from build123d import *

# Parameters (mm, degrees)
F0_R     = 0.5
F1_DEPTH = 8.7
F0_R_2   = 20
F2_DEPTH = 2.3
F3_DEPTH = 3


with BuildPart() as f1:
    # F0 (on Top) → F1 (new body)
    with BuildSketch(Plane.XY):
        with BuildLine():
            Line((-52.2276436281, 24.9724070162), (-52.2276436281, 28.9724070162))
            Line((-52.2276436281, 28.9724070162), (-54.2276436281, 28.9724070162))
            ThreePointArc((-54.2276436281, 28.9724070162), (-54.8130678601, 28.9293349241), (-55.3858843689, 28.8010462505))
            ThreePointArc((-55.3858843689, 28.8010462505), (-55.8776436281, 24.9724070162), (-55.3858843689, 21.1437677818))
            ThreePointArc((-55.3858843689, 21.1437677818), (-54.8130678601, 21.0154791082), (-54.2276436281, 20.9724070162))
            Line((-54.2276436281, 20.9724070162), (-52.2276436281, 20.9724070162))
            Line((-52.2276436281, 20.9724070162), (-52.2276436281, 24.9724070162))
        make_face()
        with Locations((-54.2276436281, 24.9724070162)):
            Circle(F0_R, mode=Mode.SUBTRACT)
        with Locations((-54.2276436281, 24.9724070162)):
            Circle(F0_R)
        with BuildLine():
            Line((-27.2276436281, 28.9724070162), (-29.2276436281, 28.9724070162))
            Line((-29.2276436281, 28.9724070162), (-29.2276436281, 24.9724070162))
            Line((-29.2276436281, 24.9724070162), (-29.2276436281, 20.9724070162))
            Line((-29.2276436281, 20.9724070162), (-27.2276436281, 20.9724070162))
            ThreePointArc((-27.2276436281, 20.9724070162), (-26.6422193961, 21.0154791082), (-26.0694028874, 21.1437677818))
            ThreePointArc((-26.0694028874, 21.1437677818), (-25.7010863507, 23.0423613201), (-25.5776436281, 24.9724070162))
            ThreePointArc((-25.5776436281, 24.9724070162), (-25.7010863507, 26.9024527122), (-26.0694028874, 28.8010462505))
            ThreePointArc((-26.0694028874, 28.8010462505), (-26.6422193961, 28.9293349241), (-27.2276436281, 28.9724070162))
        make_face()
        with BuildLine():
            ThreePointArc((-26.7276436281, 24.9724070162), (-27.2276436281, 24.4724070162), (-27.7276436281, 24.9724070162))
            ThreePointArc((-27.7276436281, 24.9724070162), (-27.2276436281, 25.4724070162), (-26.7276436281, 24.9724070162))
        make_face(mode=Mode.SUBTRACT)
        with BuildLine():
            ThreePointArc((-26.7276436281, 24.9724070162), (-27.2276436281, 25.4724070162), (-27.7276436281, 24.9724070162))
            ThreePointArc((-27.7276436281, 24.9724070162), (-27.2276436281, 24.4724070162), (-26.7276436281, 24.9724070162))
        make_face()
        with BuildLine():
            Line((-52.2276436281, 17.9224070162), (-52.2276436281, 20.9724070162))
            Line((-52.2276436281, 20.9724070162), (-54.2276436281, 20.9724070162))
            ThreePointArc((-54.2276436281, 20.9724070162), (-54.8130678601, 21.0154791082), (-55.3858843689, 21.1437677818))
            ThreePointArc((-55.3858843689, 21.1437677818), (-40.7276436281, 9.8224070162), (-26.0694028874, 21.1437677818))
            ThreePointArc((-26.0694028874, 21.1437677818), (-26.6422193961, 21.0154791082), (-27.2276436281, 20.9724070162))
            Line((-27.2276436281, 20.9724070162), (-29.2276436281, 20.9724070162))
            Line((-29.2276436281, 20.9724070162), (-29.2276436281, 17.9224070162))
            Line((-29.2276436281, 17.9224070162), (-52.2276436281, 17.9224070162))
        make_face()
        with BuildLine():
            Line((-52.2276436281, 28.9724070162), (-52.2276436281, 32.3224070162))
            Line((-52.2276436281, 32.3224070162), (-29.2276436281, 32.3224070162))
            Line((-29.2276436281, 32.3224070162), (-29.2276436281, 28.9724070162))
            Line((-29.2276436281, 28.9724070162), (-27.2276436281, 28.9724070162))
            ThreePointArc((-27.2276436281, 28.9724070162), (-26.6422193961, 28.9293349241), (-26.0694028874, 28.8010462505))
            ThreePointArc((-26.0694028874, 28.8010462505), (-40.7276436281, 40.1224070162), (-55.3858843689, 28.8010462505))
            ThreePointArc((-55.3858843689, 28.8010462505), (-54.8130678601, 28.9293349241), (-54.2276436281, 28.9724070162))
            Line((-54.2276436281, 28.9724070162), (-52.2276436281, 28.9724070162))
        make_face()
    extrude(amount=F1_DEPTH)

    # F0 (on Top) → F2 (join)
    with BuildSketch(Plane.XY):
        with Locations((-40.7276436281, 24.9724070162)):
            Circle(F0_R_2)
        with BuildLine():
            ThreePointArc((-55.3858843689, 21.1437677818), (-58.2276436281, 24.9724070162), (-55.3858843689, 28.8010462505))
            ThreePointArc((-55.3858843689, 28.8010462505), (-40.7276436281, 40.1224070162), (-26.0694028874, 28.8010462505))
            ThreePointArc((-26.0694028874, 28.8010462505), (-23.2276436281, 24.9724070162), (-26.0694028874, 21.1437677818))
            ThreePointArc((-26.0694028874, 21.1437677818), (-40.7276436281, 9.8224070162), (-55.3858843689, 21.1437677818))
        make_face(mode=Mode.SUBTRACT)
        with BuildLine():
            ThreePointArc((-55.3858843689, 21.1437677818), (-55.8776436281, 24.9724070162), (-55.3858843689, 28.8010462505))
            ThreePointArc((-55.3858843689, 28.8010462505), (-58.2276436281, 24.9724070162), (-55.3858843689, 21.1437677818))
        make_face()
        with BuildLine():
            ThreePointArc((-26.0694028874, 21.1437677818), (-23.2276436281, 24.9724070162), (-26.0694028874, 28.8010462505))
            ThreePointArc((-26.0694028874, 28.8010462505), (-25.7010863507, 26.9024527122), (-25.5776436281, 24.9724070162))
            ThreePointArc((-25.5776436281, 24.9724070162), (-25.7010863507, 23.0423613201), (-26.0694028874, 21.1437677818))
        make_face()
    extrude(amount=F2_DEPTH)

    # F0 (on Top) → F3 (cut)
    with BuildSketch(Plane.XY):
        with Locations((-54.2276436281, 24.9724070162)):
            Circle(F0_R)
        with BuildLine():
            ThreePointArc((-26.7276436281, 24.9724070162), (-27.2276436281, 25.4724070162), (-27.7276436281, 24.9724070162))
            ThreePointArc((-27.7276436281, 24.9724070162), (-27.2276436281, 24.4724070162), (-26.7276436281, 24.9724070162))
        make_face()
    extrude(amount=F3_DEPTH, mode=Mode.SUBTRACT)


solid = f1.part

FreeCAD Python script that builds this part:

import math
import FreeCAD as App
import Part
import Sketcher
Q = App.Units.Quantity

doc = App.newDocument("Part")
body = doc.addObject("PartDesign::Body", "Body")

sketch1 = body.newObject("Sketcher::SketchObject", "Sketch")
sketch1.AttachmentSupport = (doc.getObject("XY_Plane"), [""])
sketch1.MapMode = "FlatFace"
sketch1.addGeometry([
    Part.ArcOfCircle(Part.Circle(App.Vector(-40.7, 25, 0), App.Vector(0, 0, 1), 15.2), math.radians(165), math.radians(195)),
    Part.ArcOfCircle(Part.Circle(App.Vector(-40.7, 25, 0), App.Vector(0, 0, 1), 15.2), math.radians(-165), math.radians(-15)),
    Part.ArcOfCircle(Part.Circle(App.Vector(-40.7, 25, 0), App.Vector(0, 0, 1), 15.1), math.radians(-14.64), math.radians(0)),
    Part.ArcOfCircle(Part.Circle(App.Vector(-40.7, 25, 0), App.Vector(0, 0, 1), 15.1), math.radians(0), math.radians(14.64)),
    Part.ArcOfCircle(Part.Circle(App.Vector(-40.7, 25, 0), App.Vector(0, 0, 1), 15.2), math.radians(15), math.radians(165)),
    Part.LineSegment(App.Vector(-29.2, 17.9, 0), App.Vector(-52.2, 17.9, 0)),
    Part.LineSegment(App.Vector(-52.2, 17.9, 0), App.Vector(-52.2, 32.3, 0)),
    Part.LineSegment(App.Vector(-52.2, 32.3, 0), App.Vector(-29.2, 32.3, 0)),
    Part.LineSegment(App.Vector(-29.2, 32.3, 0), App.Vector(-29.2, 17.9, 0)),
], False)
sketch1.addConstraint([
    Sketcher.Constraint("Tangent", 0, 2, 1, 1),
    Sketcher.Constraint("Tangent", 1, 2, 2, 1),
    Sketcher.Constraint("Tangent", 2, 2, 3, 1),
    Sketcher.Constraint("Tangent", 3, 2, 4, 1),
    Sketcher.Constraint("Tangent", 4, 2, 0, 1),
    Sketcher.Constraint("Coincident", 5, 2, 6, 1),
    Sketcher.Constraint("Coincident", 6, 2, 7, 1),
    Sketcher.Constraint("Coincident", 7, 2, 8, 1),
    Sketcher.Constraint("Coincident", 8, 2, 5, 1),
    Sketcher.Constraint("Horizontal", 5),
    Sketcher.Constraint("Vertical", 6),
    Sketcher.Constraint("Horizontal", 7),
    Sketcher.Constraint("Vertical", 8),
    Sketcher.Constraint("Coincident", 2, 3, 0, 3),
    Sketcher.Constraint("Horizontal", 0, 2, 1, 2),
    Sketcher.Constraint("Horizontal", 4, 3, 2, 2),
    Sketcher.Constraint("Horizontal", 3, 2, 4, 2),
    Sketcher.Constraint("Vertical", 1, 2, 3, 2),
    Sketcher.Constraint("DistanceX", 5, 2, 5, 1, Q("23 mm")),
    Sketcher.Constraint("Radius", 0, Q("15.15 mm")),
    Sketcher.Constraint("DistanceY", 6, 1, 6, 2, Q("14.4 mm")),
    Sketcher.Constraint("DistanceX", 5, 2, 1, 3, Q("11.5 mm")),
    Sketcher.Constraint("DistanceY", 5, 2, 1, 3, Q("7.05 mm")),
    Sketcher.Constraint("DistanceX", 0, 2, 1, 3, Q("14.658241 mm")),
    Sketcher.Constraint("DistanceX", 0, 3, -1, 1, Q("40.727644 mm")),
    Sketcher.Constraint("DistanceY", -1, 1, 0, 3, Q("24.972407 mm")),
])
pad1 = body.newObject("PartDesign::Pad", "Pad")
pad1.Profile = sketch1
pad1.Length = 8.7

sketch2 = body.newObject("Sketcher::SketchObject", "Sketch001")
sketch2.AttachmentSupport = (doc.getObject("XY_Plane"), [""])
sketch2.MapMode = "FlatFace"
sketch2.addGeometry([
    Part.Circle(App.Vector(-40.7, 25, 0), App.Vector(0, 0, 1), 20),
    Part.ArcOfCircle(Part.Circle(App.Vector(-40.7, 25, 0), App.Vector(0, 0, 1), 15.2), math.radians(-165), math.radians(-15)),
    Part.ArcOfCircle(Part.Circle(App.Vector(-40.7, 25, 0), App.Vector(0, 0, 1), 15.2), math.radians(165), math.radians(195)),
    Part.ArcOfCircle(Part.Circle(App.Vector(-40.7, 25, 0), App.Vector(0, 0, 1), 15.2), math.radians(15), math.radians(165)),
    Part.ArcOfCircle(Part.Circle(App.Vector(-40.7, 25, 0), App.Vector(0, 0, 1), 15.1), math.radians(0), math.radians(14.64)),
    Part.ArcOfCircle(Part.Circle(App.Vector(-40.7, 25, 0), App.Vector(0, 0, 1), 15.1), math.radians(-14.64), math.radians(0)),
], False)
sketch2.addConstraint([
    Sketcher.Constraint("Tangent", 1, 1, 2, 2),
    Sketcher.Constraint("Tangent", 2, 1, 3, 2),
    Sketcher.Constraint("Tangent", 3, 1, 4, 2),
    Sketcher.Constraint("Tangent", 4, 1, 5, 2),
    Sketcher.Constraint("Tangent", 5, 1, 1, 2),
    Sketcher.Constraint("Coincident", 1, 3, 0, 3),
    Sketcher.Constraint("Coincident", 3, 3, 0, 3),
    Sketcher.Constraint("Horizontal", 2, 1, 3, 1),
    Sketcher.Constraint("Horizontal", 5, 3, 4, 1),
    Sketcher.Constraint("Horizontal", 1, 1, 5, 1),
    Sketcher.Constraint("Vertical", 1, 1, 2, 1),
    Sketcher.Constraint("Diameter", 0, Q("40 mm")),
    Sketcher.Constraint("Radius", 1, Q("15.15 mm")),
    Sketcher.Constraint("DistanceX", 1, 1, 0, 3, Q("14.658241 mm")),
    Sketcher.Constraint("DistanceX", 0, 3, -1, 1, Q("40.727644 mm")),
    Sketcher.Constraint("DistanceY", -1, 1, 0, 3, Q("24.972407 mm")),
])
pad2 = body.newObject("PartDesign::Pad", "Pad001")
pad2.Profile = sketch2
pad2.Length = 2.3

sketch3 = body.newObject("Sketcher::SketchObject", "Sketch002")
sketch3.AttachmentSupport = (doc.getObject("XY_Plane"), [""])
sketch3.MapMode = "FlatFace"
sketch3.addGeometry([
    Part.Circle(App.Vector(-54.2, 25, 0), App.Vector(0, 0, 1), 0.5),
    Part.Circle(App.Vector(-27.2, 25, 0), App.Vector(0, 0, 1), 0.5),
], False)
sketch3.addConstraint([
    Sketcher.Constraint("Equal", 0, 1),
    Sketcher.Constraint("Horizontal", 0, 3, 1, 3),
    Sketcher.Constraint("Diameter", 0, Q("1 mm")),
    Sketcher.Constraint("DistanceX", 0, 3, 1, 3, Q("27 mm")),
    Sketcher.Constraint("DistanceX", 0, 3, -1, 1, Q("54.227644 mm")),
    Sketcher.Constraint("DistanceY", -1, 1, 0, 3, Q("24.972407 mm")),
])
pocket1 = body.newObject("PartDesign::Pocket", "Pocket")
pocket1.Profile = sketch3
pocket1.Length = 3
pocket1.Reversed = True

doc.recompute()
